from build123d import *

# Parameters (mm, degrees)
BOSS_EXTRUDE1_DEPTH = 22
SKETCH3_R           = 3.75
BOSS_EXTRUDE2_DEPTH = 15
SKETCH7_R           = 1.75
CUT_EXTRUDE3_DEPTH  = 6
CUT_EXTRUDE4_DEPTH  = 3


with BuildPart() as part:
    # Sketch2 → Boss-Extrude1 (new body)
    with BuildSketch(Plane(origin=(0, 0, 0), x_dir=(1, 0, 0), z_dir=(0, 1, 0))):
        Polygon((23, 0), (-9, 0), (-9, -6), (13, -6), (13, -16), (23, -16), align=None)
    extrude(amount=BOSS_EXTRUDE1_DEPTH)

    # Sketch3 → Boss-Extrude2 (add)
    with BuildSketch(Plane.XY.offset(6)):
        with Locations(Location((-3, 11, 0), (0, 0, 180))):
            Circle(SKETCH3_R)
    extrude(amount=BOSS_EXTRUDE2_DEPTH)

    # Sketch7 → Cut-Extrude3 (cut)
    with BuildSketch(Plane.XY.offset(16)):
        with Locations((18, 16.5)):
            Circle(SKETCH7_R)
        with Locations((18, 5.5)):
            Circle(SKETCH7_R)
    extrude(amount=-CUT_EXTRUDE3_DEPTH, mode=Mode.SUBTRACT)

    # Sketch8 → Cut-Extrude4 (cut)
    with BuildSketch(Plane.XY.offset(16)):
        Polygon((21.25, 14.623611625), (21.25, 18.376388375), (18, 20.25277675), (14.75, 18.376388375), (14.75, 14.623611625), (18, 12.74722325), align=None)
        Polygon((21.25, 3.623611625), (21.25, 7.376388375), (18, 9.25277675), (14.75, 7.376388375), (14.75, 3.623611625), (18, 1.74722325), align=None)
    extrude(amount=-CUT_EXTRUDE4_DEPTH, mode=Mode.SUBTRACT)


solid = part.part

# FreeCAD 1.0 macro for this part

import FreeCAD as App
import Part
import Sketcher

V = App.Vector
Q = App.Units.Quantity


def add_polygon(sketch, points):
    """Adds a closed chain of lines whose ends are joined by coincident constraints."""
    first, n = sketch.GeometryCount, len(points)
    for a, b in zip(points, points[1:] + points[:1]):
        sketch.addGeometry(Part.LineSegment(App.Vector(*a, 0), App.Vector(*b, 0)), False)
    for i in range(n):
        sketch.addConstraint(Sketcher.Constraint("Coincident", first + i, 2, first + (i + 1) % n, 1))

doc = App.newDocument("Part")
body = doc.addObject("PartDesign::Body", "Body")

sketch1 = body.newObject("Sketcher::SketchObject", "Sketch")
sketch1.AttachmentSupport = (doc.getObject("XZ_Plane"), [""])
sketch1.MapMode = "FlatFace"
add_polygon(sketch1, [(23, 0), (-9, 0), (-9, 6), (13, 6), (13, 16), (23, 16)])
sketch1.addConstraint([
    Sketcher.Constraint("Horizontal", 0),
    Sketcher.Constraint("Vertical", 1),
    Sketcher.Constraint("Horizontal", 2),
    Sketcher.Constraint("Vertical", 3),
    Sketcher.Constraint("Horizontal", 4),
    Sketcher.Constraint("Vertical", 5),
    Sketcher.Constraint("PointOnObject", 0, 2, -1),
    Sketcher.Constraint("Equal", 4, 3),
    Sketcher.Constraint("DistanceX", 0, 2, 0, 1, Q("32 mm")),
    Sketcher.Constraint("DistanceX", 2, 1, 2, 2, Q("22 mm")),
    Sketcher.Constraint("DistanceY", 1, 1, 1, 2, Q("6 mm")),
    Sketcher.Constraint("DistanceX", 0, 2, -1, 1, Q("9 mm")),
])
pad1 = body.newObject("PartDesign::Pad", "Pad")
pad1.Profile = sketch1
pad1.Length = 22
pad1.Reversed = True

sketch2 = body.newObject("Sketcher::SketchObject", "Sketch001")
sketch2.AttachmentSupport = (doc.getObject("XY_Plane"), [""])
sketch2.MapMode = "FlatFace"
sketch2.AttachmentOffset = App.Placement(V(0, 0, 6), App.Rotation())
sketch2.addGeometry(Part.Circle(V(-3, 11, 0), V(0, 0, 1), 3.8), False)
sketch2.addConstraint([
    Sketcher.Constraint("Diameter", 0, Q("7.5 mm")),
    Sketcher.Constraint("DistanceX", 0, 3, -1, 1, Q("3 mm")),
    Sketcher.Constraint("DistanceY", -1, 1, 0, 3, Q("11 mm")),
])
pad2 = body.newObject("PartDesign::Pad", "Pad001")
pad2.Profile = sketch2
pad2.Length = 15

sketch3 = body.newObject("Sketcher::SketchObject", "Sketch002")
sketch3.AttachmentSupport = (doc.getObject("XY_Plane"), [""])
sketch3.MapMode = "FlatFace"
sketch3.AttachmentOffset = App.Placement(V(0, 0, 16), App.Rotation())
sketch3.addGeometry([
    Part.Circle(V(18, 16.5, 0), V(0, 0, 1), 1.8),
    Part.Circle(V(18, 5.5, 0), V(0, 0, 1), 1.8),
], False)
sketch3.addConstraint([
    Sketcher.Constraint("Equal", 0, 1),
    Sketcher.Constraint("Vertical", 0, 3, 1, 3),
    Sketcher.Constraint("Diameter", 0, Q("3.5 mm")),
    Sketcher.Constraint("DistanceX", -1, 1, 0, 3, Q("18 mm")),
    Sketcher.Constraint("DistanceY", 1, 3, 0, 3, Q("11 mm")),
    Sketcher.Constraint("DistanceY", -1, 1, 0, 3, Q("16.5 mm")),
])
pocket1 = body.newObject("PartDesign::Pocket", "Pocket")
pocket1.Profile = sketch3
pocket1.Length = 6

sketch4 = body.newObject("Sketcher::SketchObject", "Sketch003")
sketch4.AttachmentSupport = (doc.getObject("XY_Plane"), [""])
sketch4.MapMode = "FlatFace"
sketch4.AttachmentOffset = App.Placement(V(0, 0, 16), App.Rotation())
add_polygon(sketch4, [(21.2, 14.6), (21.2, 18.4), (18, 20.3), (14.8, 18.4), (14.8, 14.6), (18, 12.7)])
add_polygon(sketch4, [(21.2, 3.6), (21.2, 7.4), (18, 9.3), (14.8, 7.4), (14.8, 3.6), (18, 1.7)])
sketch4.addConstraint([
    Sketcher.Constraint("Vertical", 0),
    Sketcher.Constraint("Vertical", 3),
    Sketcher.Constraint("Vertical", 6),
    Sketcher.Constraint("Vertical", 9),
    Sketcher.Constraint("Parallel", 1, 4),
    Sketcher.Constraint("Parallel", 2, 5),
    Sketcher.Constraint("Parallel", 4, 7),
    Sketcher.Constraint("Parallel", 5, 8),
    Sketcher.Constraint("Parallel", 7, 10),
    Sketcher.Constraint("Parallel", 8, 11),
    Sketcher.Constraint("Horizontal", 0, 2, 2, 2),
    Sketcher.Constraint("Horizontal", 3, 2, 5, 2),
    Sketcher.Constraint("Horizontal", 6, 2, 8, 2),
    Sketcher.Constraint("Horizontal", 9, 2, 11, 2),
    Sketcher.Constraint("Vertical", 1, 2, 4, 2),
    Sketcher.Constraint("Vertical", 5, 2, 6, 2),
    Sketcher.Constraint("Vertical", 4, 2, 7, 2),
    Sketcher.Constraint("Equal", 3, 6),
    Sketcher.Constraint("Angle", 1, Q("150 deg")),
    Sketcher.Constraint("DistanceX", -1, 1, 1, 2, Q("18 mm")),
    Sketcher.Constraint("DistanceY", 6, 2, 0, 2, Q("11 mm")),
    Sketcher.Constraint("DistanceX", 2, 2, 0, 2, Q("6.5 mm")),
    Sketcher.Constraint("DistanceY", 0, 1, 0, 2, Q("3.752777 mm")),
    Sketcher.Constraint("DistanceY", -1, 1, 0, 2, Q("18.376388 mm")),
])
pocket2 = body.newObject("PartDesign::Pocket", "Pocket001")
pocket2.Profile = sketch4
pocket2.Length = 3

doc.recompute()
